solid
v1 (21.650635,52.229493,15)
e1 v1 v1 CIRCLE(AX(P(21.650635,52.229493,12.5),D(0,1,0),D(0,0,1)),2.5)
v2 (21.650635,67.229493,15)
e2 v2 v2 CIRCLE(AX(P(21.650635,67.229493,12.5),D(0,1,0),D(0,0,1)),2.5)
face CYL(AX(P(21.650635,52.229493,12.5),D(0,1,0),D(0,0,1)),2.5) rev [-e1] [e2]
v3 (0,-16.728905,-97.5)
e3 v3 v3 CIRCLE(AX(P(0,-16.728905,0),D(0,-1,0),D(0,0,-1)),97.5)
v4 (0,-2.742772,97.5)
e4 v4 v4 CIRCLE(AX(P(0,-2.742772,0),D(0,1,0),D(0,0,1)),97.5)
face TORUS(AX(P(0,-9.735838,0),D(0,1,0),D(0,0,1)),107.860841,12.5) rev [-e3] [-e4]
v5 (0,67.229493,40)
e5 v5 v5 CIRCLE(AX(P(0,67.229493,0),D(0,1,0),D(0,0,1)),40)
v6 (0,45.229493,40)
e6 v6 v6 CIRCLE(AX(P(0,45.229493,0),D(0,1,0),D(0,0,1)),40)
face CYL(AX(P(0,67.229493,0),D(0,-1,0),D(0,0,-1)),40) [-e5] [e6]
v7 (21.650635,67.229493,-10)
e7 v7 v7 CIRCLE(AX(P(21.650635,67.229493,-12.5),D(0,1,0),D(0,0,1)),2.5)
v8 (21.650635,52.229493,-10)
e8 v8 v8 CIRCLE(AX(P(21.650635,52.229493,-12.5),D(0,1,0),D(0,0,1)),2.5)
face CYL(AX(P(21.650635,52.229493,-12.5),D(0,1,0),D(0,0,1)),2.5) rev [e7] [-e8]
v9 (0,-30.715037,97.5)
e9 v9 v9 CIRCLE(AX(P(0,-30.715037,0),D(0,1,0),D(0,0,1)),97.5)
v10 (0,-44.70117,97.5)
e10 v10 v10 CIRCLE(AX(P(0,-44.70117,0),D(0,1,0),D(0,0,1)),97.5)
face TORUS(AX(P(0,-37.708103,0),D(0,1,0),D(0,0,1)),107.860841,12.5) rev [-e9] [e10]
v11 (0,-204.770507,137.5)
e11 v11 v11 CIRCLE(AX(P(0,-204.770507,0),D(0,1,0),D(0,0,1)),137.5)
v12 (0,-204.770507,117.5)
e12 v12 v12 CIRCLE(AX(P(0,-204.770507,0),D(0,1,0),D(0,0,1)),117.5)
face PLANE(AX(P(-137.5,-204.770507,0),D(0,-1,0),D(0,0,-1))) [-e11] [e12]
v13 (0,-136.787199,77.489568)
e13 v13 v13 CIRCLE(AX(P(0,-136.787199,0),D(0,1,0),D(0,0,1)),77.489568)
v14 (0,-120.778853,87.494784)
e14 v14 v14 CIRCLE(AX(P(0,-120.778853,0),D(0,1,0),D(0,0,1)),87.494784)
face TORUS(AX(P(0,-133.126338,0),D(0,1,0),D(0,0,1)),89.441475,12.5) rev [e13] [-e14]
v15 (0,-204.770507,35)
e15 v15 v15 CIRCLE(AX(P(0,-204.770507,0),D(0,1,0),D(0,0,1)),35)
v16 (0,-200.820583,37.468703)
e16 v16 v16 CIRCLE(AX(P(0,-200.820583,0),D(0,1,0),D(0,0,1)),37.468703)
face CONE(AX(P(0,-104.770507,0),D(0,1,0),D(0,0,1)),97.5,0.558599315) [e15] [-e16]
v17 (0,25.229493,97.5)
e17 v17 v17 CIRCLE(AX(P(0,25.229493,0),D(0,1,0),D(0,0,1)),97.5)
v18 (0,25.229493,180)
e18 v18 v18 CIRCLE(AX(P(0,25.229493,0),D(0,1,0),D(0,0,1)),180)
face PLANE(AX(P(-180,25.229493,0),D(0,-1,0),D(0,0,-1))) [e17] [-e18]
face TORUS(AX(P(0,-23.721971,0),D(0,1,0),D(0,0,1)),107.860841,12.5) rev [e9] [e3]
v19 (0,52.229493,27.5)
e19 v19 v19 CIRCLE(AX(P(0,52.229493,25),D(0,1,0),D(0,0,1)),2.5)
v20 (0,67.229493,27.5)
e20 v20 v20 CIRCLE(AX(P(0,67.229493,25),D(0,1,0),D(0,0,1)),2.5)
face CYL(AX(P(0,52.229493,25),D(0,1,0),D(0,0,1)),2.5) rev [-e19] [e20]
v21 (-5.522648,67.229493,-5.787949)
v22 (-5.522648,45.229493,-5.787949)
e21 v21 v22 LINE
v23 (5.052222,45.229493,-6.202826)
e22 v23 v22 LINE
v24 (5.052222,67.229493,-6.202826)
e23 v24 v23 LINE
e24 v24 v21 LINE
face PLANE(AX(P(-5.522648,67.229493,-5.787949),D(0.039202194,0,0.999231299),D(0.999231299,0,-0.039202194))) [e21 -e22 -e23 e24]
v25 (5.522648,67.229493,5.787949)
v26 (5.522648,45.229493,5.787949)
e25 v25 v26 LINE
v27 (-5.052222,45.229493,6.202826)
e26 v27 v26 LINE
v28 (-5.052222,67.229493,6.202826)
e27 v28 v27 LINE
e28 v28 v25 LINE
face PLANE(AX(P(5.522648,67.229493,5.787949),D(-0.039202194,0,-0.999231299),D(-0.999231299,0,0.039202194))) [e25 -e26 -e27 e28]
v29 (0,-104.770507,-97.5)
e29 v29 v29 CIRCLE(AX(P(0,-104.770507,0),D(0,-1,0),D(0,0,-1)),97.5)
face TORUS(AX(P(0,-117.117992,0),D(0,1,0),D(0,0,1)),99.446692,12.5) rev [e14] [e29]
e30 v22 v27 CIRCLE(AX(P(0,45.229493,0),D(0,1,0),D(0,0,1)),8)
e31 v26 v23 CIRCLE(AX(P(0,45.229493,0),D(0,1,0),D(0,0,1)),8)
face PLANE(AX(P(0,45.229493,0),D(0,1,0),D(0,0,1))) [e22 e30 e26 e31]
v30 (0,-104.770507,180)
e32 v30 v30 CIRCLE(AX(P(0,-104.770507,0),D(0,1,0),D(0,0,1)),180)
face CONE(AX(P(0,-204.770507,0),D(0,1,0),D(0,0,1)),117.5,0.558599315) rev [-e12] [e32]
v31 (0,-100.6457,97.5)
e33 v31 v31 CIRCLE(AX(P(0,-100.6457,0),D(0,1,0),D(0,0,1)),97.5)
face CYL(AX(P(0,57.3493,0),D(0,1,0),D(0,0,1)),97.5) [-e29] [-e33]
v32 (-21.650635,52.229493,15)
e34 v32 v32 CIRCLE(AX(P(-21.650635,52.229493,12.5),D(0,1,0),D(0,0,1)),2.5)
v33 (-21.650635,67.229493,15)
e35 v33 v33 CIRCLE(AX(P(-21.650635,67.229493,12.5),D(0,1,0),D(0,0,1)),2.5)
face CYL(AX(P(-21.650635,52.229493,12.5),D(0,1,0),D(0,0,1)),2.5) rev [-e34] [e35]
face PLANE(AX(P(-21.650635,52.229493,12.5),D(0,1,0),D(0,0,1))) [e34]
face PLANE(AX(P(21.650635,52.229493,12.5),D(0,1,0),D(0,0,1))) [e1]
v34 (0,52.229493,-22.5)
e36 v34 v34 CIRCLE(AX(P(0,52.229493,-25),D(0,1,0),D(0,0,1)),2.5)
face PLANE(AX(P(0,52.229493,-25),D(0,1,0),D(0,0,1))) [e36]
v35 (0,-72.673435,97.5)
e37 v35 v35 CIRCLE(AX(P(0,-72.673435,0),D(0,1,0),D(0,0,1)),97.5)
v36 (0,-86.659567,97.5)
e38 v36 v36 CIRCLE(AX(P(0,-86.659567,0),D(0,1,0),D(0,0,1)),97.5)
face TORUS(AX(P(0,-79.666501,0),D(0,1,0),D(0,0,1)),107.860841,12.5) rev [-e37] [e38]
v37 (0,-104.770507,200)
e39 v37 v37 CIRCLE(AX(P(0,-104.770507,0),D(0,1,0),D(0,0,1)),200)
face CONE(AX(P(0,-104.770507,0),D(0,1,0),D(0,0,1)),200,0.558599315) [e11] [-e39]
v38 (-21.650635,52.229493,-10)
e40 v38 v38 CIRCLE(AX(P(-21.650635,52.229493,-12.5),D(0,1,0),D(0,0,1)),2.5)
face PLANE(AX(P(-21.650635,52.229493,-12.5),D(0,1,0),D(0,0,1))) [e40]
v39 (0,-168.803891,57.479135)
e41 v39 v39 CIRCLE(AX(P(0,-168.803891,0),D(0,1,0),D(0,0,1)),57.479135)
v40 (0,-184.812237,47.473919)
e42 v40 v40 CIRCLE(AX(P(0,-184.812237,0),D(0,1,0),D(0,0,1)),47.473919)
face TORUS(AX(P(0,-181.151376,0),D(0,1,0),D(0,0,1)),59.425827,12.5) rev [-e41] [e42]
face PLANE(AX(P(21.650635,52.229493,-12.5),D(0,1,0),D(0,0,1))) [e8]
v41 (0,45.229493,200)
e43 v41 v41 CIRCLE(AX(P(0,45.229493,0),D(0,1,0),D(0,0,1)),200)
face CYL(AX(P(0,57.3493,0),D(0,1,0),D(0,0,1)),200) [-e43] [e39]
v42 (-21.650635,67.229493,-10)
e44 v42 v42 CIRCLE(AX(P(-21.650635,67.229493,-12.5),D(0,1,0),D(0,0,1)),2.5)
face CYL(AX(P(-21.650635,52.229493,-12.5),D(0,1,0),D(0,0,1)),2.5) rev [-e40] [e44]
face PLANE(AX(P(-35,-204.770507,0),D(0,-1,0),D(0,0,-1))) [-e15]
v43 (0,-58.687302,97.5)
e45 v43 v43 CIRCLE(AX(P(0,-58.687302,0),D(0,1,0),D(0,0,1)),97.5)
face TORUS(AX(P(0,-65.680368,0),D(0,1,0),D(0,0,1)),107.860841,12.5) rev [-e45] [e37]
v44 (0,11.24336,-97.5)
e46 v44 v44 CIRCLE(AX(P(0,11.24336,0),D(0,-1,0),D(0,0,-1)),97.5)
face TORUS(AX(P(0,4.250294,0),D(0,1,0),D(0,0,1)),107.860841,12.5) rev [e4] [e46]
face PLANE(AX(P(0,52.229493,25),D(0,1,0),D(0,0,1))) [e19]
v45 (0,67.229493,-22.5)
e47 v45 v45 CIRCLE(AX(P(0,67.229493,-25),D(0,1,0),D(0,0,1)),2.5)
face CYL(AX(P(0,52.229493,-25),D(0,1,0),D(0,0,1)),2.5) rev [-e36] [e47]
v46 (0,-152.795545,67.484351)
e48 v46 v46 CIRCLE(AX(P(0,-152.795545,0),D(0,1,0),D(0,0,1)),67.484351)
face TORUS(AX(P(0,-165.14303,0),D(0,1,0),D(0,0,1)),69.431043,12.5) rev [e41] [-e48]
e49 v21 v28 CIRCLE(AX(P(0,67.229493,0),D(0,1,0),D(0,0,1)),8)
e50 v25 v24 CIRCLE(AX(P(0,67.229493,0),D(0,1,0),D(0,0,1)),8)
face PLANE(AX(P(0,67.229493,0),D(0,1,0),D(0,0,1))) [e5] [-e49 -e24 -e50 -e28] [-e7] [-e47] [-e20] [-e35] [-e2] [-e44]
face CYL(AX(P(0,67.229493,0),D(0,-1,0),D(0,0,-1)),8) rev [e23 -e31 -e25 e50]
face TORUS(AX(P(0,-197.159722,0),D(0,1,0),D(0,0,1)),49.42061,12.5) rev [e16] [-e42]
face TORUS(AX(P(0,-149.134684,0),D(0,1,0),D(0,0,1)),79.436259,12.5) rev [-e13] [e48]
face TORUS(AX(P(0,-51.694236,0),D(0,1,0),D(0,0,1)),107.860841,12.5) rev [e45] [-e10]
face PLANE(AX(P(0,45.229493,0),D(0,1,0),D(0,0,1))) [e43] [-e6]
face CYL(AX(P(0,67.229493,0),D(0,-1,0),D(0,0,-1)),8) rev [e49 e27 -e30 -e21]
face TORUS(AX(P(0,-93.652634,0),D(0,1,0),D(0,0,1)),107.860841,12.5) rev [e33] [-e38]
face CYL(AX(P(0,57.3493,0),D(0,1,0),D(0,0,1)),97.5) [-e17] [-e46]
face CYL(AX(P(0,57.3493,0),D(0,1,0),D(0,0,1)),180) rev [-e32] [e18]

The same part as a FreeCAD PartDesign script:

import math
import FreeCAD as App
import Part
import Sketcher
Q = App.Units.Quantity


def add_polygon(sketch, points):
    """Adds a closed chain of lines whose ends are joined by coincident constraints."""
    first, n = sketch.GeometryCount, len(points)
    for a, b in zip(points, points[1:] + points[:1]):
        sketch.addGeometry(Part.LineSegment(App.Vector(*a, 0), App.Vector(*b, 0)), False)
    for i in range(n):
        sketch.addConstraint(Sketcher.Constraint("Coincident", first + i, 2, first + (i + 1) % n, 1))

doc = App.newDocument("Part")
body = doc.addObject("PartDesign::Body", "Body")

# Sketch on XY plane
sketch1 = body.newObject("Sketcher::SketchObject", "Sketch")
sketch1.AttachmentSupport = (doc.getObject("XY_Plane"), [""])
sketch1.MapMode = "FlatFace"
add_polygon(sketch1, [(0, 45), (-200, 45), (-200, -105), (-138, -205), (-118, -205), (-180, -105), (-180, 25), (-98, 25), (-98, -105), (-35, -205), (0, -205)])  # lines 0-10
sketch1.addConstraint([
    Sketcher.Constraint("Horizontal", 0),
    Sketcher.Constraint("Vertical", 1),
    Sketcher.Constraint("Horizontal", 3),
    Sketcher.Constraint("Vertical", 5),
    Sketcher.Constraint("Horizontal", 6),
    Sketcher.Constraint("Vertical", 7),
    Sketcher.Constraint("Horizontal", 9),
    Sketcher.Constraint("Vertical", 10),
    Sketcher.Constraint("PointOnObject", 9, 2, -2),
    Sketcher.Constraint("Parallel", 2, 4),
    Sketcher.Constraint("Parallel", 4, 8),
    Sketcher.Constraint("Horizontal", 1, 2, 4, 2),
    Sketcher.Constraint("Horizontal", 4, 2, 7, 2),
    Sketcher.Constraint("Horizontal", 3, 2, 8, 2),
    Sketcher.Constraint("DistanceX", 0, 2, 0, 1, Q("200 mm")),
    Sketcher.Constraint("DistanceX", 3, 1, 3, 2, Q("20 mm")),
    Sketcher.Constraint("DistanceX", 9, 1, 9, 2, Q("35 mm")),
    Sketcher.Constraint("DistanceY", 1, 2, 1, 1, Q("150 mm")),
    Sketcher.Constraint("DistanceY", 5, 1, 5, 2, Q("130 mm")),
    Sketcher.Constraint("DistanceY", 10, 1, 10, 2, Q("250 mm")),
    Sketcher.Constraint("DistanceX", 6, 1, 6, 2, Q("82.5 mm")),
    Sketcher.Constraint("DistanceY", -1, 1, 0, 2, Q("45.229493 mm")),
])
revolution = body.newObject("PartDesign::Revolution", "Revolution")
revolution.Profile = sketch1
revolution.ReferenceAxis = (sketch1, ["V_Axis"])
revolution.Angle = 360

# Sketch on XY plane
sketch2 = body.newObject("Sketcher::SketchObject", "Sketch001")
sketch2.AttachmentSupport = (doc.getObject("XY_Plane"), [""])
sketch2.MapMode = "FlatFace"
sketch2.addGeometry([
    Part.ArcOfCircle(Part.Circle(App.Vector(-108, -80, 0), App.Vector(0, 0, 1), 12), math.radians(-34), math.radians(34)),  # 0
    Part.ArcOfCircle(Part.Circle(App.Vector(-108, -66, 0), App.Vector(0, 0, 1), 12), math.radians(-34), math.radians(34)),  # 1
    Part.ArcOfCircle(Part.Circle(App.Vector(-108, -52, 0), App.Vector(0, 0, 1), 12), math.radians(-34), math.radians(34)),  # 2
    Part.ArcOfCircle(Part.Circle(App.Vector(-108, -38, 0), App.Vector(0, 0, 1), 12), math.radians(-34), math.radians(34)),  # 3
    Part.ArcOfCircle(Part.Circle(App.Vector(-108, -24, 0), App.Vector(0, 0, 1), 12), math.radians(-34), math.radians(34)),  # 4
    Part.ArcOfCircle(Part.Circle(App.Vector(-108, -10, 0), App.Vector(0, 0, 1), 12), math.radians(-34), math.radians(34)),  # 5
    Part.ArcOfCircle(Part.Circle(App.Vector(-108, 4, 0), App.Vector(0, 0, 1), 12), math.radians(-34), math.radians(214)),  # 6
    Part.ArcOfCircle(Part.Circle(App.Vector(-108, -10, 0), App.Vector(0, 0, 1), 12), math.radians(146), math.radians(214)),  # 7
    Part.ArcOfCircle(Part.Circle(App.Vector(-108, -24, 0), App.Vector(0, 0, 1), 12), math.radians(146), math.radians(214)),  # 8
    Part.ArcOfCircle(Part.Circle(App.Vector(-108, -38, 0), App.Vector(0, 0, 1), 12), math.radians(146), math.radians(214)),  # 9
    Part.ArcOfCircle(Part.Circle(App.Vector(-108, -52, 0), App.Vector(0, 0, 1), 12), math.radians(146), math.radians(214)),  # 10
    Part.ArcOfCircle(Part.Circle(App.Vector(-108, -66, 0), App.Vector(0, 0, 1), 12), math.radians(146), math.radians(214)),  # 11
    Part.ArcOfCircle(Part.Circle(App.Vector(-108, -80, 0), App.Vector(0, 0, 1), 12), math.radians(146), math.radians(214)),  # 12
    Part.ArcOfCircle(Part.Circle(App.Vector(-108, -94, 0), App.Vector(0, 0, 1), 12), math.radians(146), math.radians(394)),  # 13
], False)
sketch2.addConstraint([
    Sketcher.Constraint("Coincident", 0, 2, 1, 1),
    Sketcher.Constraint("Coincident", 1, 2, 2, 1),
    Sketcher.Constraint("Coincident", 2, 2, 3, 1),
    Sketcher.Constraint("Coincident", 3, 2, 4, 1),
    Sketcher.Constraint("Coincident", 4, 2, 5, 1),
    Sketcher.Constraint("Coincident", 5, 2, 6, 1),
    Sketcher.Constraint("Coincident", 6, 2, 7, 1),
    Sketcher.Constraint("Coincident", 7, 2, 8, 1),
    Sketcher.Constraint("Coincident", 8, 2, 9, 1),
    Sketcher.Constraint("Coincident", 9, 2, 10, 1),
    Sketcher.Constraint("Coincident", 10, 2, 11, 1),
    Sketcher.Constraint("Coincident", 11, 2, 12, 1),
    Sketcher.Constraint("Coincident", 12, 2, 13, 1),
    Sketcher.Constraint("Coincident", 13, 2, 0, 1),
    Sketcher.Constraint("Coincident", 7, 3, 5, 3),
    Sketcher.Constraint("Coincident", 8, 3, 4, 3),
    Sketcher.Constraint("Coincident", 9, 3, 3, 3),
    Sketcher.Constraint("Coincident", 10, 3, 2, 3),
    Sketcher.Constraint("Coincident", 11, 3, 1, 3),
    Sketcher.Constraint("Coincident", 12, 3, 0, 3),
    Sketcher.Constraint("Equal", 0, 1),
    Sketcher.Constraint("Equal", 1, 2),
    Sketcher.Constraint("Equal", 2, 3),
    Sketcher.Constraint("Equal", 3, 4),
    Sketcher.Constraint("Equal", 4, 5),
    Sketcher.Constraint("Equal", 5, 6),
    Sketcher.Constraint("Equal", 6, 7),
    Sketcher.Constraint("Equal", 7, 8),
    Sketcher.Constraint("Equal", 8, 9),
    Sketcher.Constraint("Equal", 9, 10),
    Sketcher.Constraint("Equal", 10, 11),
    Sketcher.Constraint("Equal", 11, 12),
    Sketcher.Constraint("Equal", 12, 13),
    Sketcher.Constraint("Horizontal", 5, 2, 6, 2),
    Sketcher.Constraint("Horizontal", 4, 2, 7, 2),
    Sketcher.Constraint("Horizontal", 3, 2, 8, 2),
    Sketcher.Constraint("Horizontal", 2, 2, 9, 2),
    Sketcher.Constraint("Horizontal", 1, 2, 10, 2),
    Sketcher.Constraint("Horizontal", 0, 2, 11, 2),
    Sketcher.Constraint("Horizontal", 12, 2, 13, 2),
    Sketcher.Constraint("Vertical", 0, 2, 1, 2),
    Sketcher.Constraint("Vertical", 1, 2, 2, 2),
    Sketcher.Constraint("Vertical", 2, 2, 3, 2),
    Sketcher.Constraint("Vertical", 3, 2, 4, 2),
    Sketcher.Constraint("Vertical", 4, 2, 5, 2),
    Sketcher.Constraint("Vertical", 11, 2, 12, 2),
    Sketcher.Constraint("Radius", 0, Q("12.5 mm")),
    Sketcher.Constraint("DistanceX", 0, 2, -1, 1, Q("97.5 mm")),
    Sketcher.Constraint("DistanceY", 0, 3, -1, 1, Q("79.666501 mm")),
    Sketcher.Constraint("DistanceY", 13, 3, 0, 2, Q("20.979199 mm")),
])
groove = body.newObject("PartDesign::Groove", "Groove")
groove.Profile = sketch2
groove.ReferenceAxis = (sketch2, ["V_Axis"])
groove.Angle = 360

# Sketch on XY plane
sketch3 = body.newObject("Sketcher::SketchObject", "Sketch002")
sketch3.AttachmentSupport = (doc.getObject("XY_Plane"), [""])
sketch3.MapMode = "FlatFace"
sketch3.addGeometry([
    Part.ArcOfCircle(Part.Circle(App.Vector(-59, -181, 0), App.Vector(0, 0, 1), 12), math.radians(-17), math.radians(81)),  # 0
    Part.ArcOfCircle(Part.Circle(App.Vector(-69, -165, 0), App.Vector(0, 0, 1), 12), math.radians(-17), math.radians(81)),  # 1
    Part.ArcOfCircle(Part.Circle(App.Vector(-79, -149, 0), App.Vector(0, 0, 1), 12), math.radians(-17), math.radians(81)),  # 2
    Part.ArcOfCircle(Part.Circle(App.Vector(-89, -133, 0), App.Vector(0, 0, 1), 12), math.radians(-17), math.radians(81)),  # 3
    Part.ArcOfCircle(Part.Circle(App.Vector(-99, -117, 0), App.Vector(0, 0, 1), 12), math.radians(-17), math.radians(261)),  # 4
    Part.ArcOfCircle(Part.Circle(App.Vector(-89, -133, 0), App.Vector(0, 0, 1), 12), math.radians(163), math.radians(261)),  # 5
    Part.ArcOfCircle(Part.Circle(App.Vector(-79, -149, 0), App.Vector(0, 0, 1), 12), math.radians(163), math.radians(261)),  # 6
    Part.ArcOfCircle(Part.Circle(App.Vector(-69, -165, 0), App.Vector(0, 0, 1), 12), math.radians(163), math.radians(261)),  # 7
    Part.ArcOfCircle(Part.Circle(App.Vector(-59, -181, 0), App.Vector(0, 0, 1), 12), math.radians(163), math.radians(261)),  # 8
    Part.ArcOfCircle(Part.Circle(App.Vector(-49, -197, 0), App.Vector(0, 0, 1), 12), math.radians(163), math.radians(441)),  # 9
], False)
sketch3.addConstraint([
    Sketcher.Constraint("Coincident", 0, 2, 1, 1),
    Sketcher.Constraint("Coincident", 1, 2, 2, 1),
    Sketcher.Constraint("Coincident", 2, 2, 3, 1),
    Sketcher.Constraint("Coincident", 3, 2, 4, 1),
    Sketcher.Constraint("Coincident", 4, 2, 5, 1),
    Sketcher.Constraint("Coincident", 5, 2, 6, 1),
    Sketcher.Constraint("Coincident", 6, 2, 7, 1),
    Sketcher.Constraint("Coincident", 7, 2, 8, 1),
    Sketcher.Constraint("Coincident", 8, 2, 9, 1),
    Sketcher.Constraint("Coincident", 9, 2, 0, 1),
    Sketcher.Constraint("Coincident", 5, 3, 3, 3),
    Sketcher.Constraint("Coincident", 6, 3, 2, 3),
    Sketcher.Constraint("Coincident", 7, 3, 1, 3),
    Sketcher.Constraint("Coincident", 8, 3, 0, 3),
    Sketcher.Constraint("Equal", 0, 1),
    Sketcher.Constraint("Equal", 1, 2),
    Sketcher.Constraint("Equal", 2, 3),
    Sketcher.Constraint("Equal", 3, 4),
    Sketcher.Constraint("Equal", 4, 5),
    Sketcher.Constraint("Equal", 5, 6),
    Sketcher.Constraint("Equal", 6, 7),
    Sketcher.Constraint("Equal", 7, 8),
    Sketcher.Constraint("Equal", 8, 9),
    Sketcher.Constraint("Radius", 0, Q("12.5 mm")),
    Sketcher.Constraint("DistanceY", 2, 2, -1, 1, Q("136.787199 mm")),
    Sketcher.Constraint("DistanceX", 4, 2, 3, 2, Q("13.898599 mm")),
    Sketcher.Constraint("DistanceX", 5, 2, 2, 2, Q("13.898599 mm")),
    Sketcher.Constraint("DistanceX", 6, 2, 1, 2, Q("13.898599 mm")),
    Sketcher.Constraint("DistanceX", 7, 2, 0, 2, Q("13.898599 mm")),
    Sketcher.Constraint("DistanceX", 8, 2, 9, 2, Q("13.898599 mm")),
    Sketcher.Constraint("DistanceY", 1, 3, -1, 1, Q("165.14303 mm")),
    Sketcher.Constraint("DistanceX", 2, 3, -1, 1, Q("79.436259 mm")),
    Sketcher.Constraint("DistanceY", 3, 3, -1, 1, Q("133.126338 mm")),
    Sketcher.Constraint("DistanceX", 4, 3, -1, 1, Q("99.446692 mm")),
    Sketcher.Constraint("DistanceX", 9, 3, -1, 1, Q("49.42061 mm")),
    Sketcher.Constraint("DistanceY", 0, 2, -1, 1, Q("168.803891 mm")),
])
groove2 = body.newObject("PartDesign::Groove", "Groove001")
groove2.Profile = sketch3
groove2.ReferenceAxis = (sketch3, ["V_Axis"])
groove2.Angle = 360

# Sketch on XZ plane
sketch4 = body.newObject("Sketcher::SketchObject", "Sketch003")
sketch4.AttachmentSupport = (doc.getObject("XZ_Plane"), [""])
sketch4.MapMode = "FlatFace"
sketch4.AttachmentOffset = App.Placement(App.Vector(0, 0, -45.229493), App.Rotation())
sketch4.addGeometry([
    Part.Circle(App.Vector(0, 0, 0), App.Vector(0, 0, 1), 40),  # 0
    Part.ArcOfCircle(Part.Circle(App.Vector(0, 0, 0), App.Vector(0, 0, 1), 8), math.radians(129), math.radians(226)),  # 1
    Part.LineSegment(App.Vector(-6, -6, 0), App.Vector(5, -6, 0)),  # 2
    Part.ArcOfCircle(Part.Circle(App.Vector(0, 0, 0), App.Vector(0, 0, 1), 8), math.radians(-51), math.radians(46)),  # 3
    Part.LineSegment(App.Vector(6, 6, 0), App.Vector(-5, 6, 0)),  # 4
], False)
sketch4.addConstraint([
    Sketcher.Constraint("Coincident", 1, 2, 2, 1),
    Sketcher.Constraint("Coincident", 2, 2, 3, 1),
    Sketcher.Constraint("Coincident", 3, 2, 4, 1),
    Sketcher.Constraint("Coincident", 4, 2, 1, 1),
    Sketcher.Constraint("Coincident", 0, 3, -1, 1),
    Sketcher.Constraint("Coincident", 1, 3, -1, 1),
    Sketcher.Constraint("Coincident", 3, 3, -1, 1),
    Sketcher.Constraint("Equal", 1, 3),
    Sketcher.Constraint("Parallel", 2, 4),
    Sketcher.Constraint("Equal", 2, 4),
    Sketcher.Constraint("Diameter", 0, Q("80 mm")),
    Sketcher.Constraint("Radius", 1, Q("8 mm")),
    Sketcher.Constraint("DistanceY", 1, 2, 3, 2, Q("11.575899 mm")),
    Sketcher.Constraint("DistanceX", -1, 1, 2, 2, Q("5.052222 mm")),
])
pad1 = body.newObject("PartDesign::Pad", "Pad")
pad1.Profile = sketch4
pad1.Length = 22
pad1.Reversed = True

# Sketch on XZ plane
sketch5 = body.newObject("Sketcher::SketchObject", "Sketch004")
sketch5.AttachmentSupport = (doc.getObject("XZ_Plane"), [""])
sketch5.MapMode = "FlatFace"
sketch5.AttachmentOffset = App.Placement(App.Vector(0, 0, -67.229493), App.Rotation())
sketch5.addGeometry([
    Part.Circle(App.Vector(0, -25, 0), App.Vector(0, 0, 1), 2.5),  # 0
    Part.Circle(App.Vector(21.7, -12.5, 0), App.Vector(0, 0, 1), 2.5),  # 1
    Part.Circle(App.Vector(21.7, 12.5, 0), App.Vector(0, 0, 1), 2.5),  # 2
    Part.Circle(App.Vector(0, 25, 0), App.Vector(0, 0, 1), 2.5),  # 3
    Part.Circle(App.Vector(-21.7, 12.5, 0), App.Vector(0, 0, 1), 2.5),  # 4
    Part.Circle(App.Vector(-21.7, -12.5, 0), App.Vector(0, 0, 1), 2.5),  # 5
], False)
sketch5.addConstraint([
    Sketcher.Constraint("Equal", 0, 1),
    Sketcher.Constraint("Equal", 1, 2),
    Sketcher.Constraint("Equal", 2, 3),
    Sketcher.Constraint("Equal", 3, 4),
    Sketcher.Constraint("Equal", 4, 5),
    Sketcher.Constraint("Symmetric", 0, 3, 3, 3, -1, 1),
    Sketcher.Constraint("Symmetric", 1, 3, 4, 3, -1, 1),
    Sketcher.Constraint("Symmetric", 2, 3, 5, 3, -1, 1),
    Sketcher.Constraint("Symmetric", 2, 3, 4, 3, -2),
    Sketcher.Constraint("PointOnObject", 0, 3, -2),
    Sketcher.Constraint("Diameter", 0, Q("5 mm")),
    Sketcher.Constraint("DistanceY", 0, 3, -1, 1, Q("25 mm")),
    Sketcher.Constraint("DistanceY", 1, 3, 2, 3, Q("25 mm")),
    Sketcher.Constraint("DistanceX", 4, 3, 2, 3, Q("43.30127 mm")),
])
pocket1 = body.newObject("PartDesign::Pocket", "Pocket")
pocket1.Profile = sketch5
pocket1.Length = 15
pocket1.Reversed = True

doc.recompute()
